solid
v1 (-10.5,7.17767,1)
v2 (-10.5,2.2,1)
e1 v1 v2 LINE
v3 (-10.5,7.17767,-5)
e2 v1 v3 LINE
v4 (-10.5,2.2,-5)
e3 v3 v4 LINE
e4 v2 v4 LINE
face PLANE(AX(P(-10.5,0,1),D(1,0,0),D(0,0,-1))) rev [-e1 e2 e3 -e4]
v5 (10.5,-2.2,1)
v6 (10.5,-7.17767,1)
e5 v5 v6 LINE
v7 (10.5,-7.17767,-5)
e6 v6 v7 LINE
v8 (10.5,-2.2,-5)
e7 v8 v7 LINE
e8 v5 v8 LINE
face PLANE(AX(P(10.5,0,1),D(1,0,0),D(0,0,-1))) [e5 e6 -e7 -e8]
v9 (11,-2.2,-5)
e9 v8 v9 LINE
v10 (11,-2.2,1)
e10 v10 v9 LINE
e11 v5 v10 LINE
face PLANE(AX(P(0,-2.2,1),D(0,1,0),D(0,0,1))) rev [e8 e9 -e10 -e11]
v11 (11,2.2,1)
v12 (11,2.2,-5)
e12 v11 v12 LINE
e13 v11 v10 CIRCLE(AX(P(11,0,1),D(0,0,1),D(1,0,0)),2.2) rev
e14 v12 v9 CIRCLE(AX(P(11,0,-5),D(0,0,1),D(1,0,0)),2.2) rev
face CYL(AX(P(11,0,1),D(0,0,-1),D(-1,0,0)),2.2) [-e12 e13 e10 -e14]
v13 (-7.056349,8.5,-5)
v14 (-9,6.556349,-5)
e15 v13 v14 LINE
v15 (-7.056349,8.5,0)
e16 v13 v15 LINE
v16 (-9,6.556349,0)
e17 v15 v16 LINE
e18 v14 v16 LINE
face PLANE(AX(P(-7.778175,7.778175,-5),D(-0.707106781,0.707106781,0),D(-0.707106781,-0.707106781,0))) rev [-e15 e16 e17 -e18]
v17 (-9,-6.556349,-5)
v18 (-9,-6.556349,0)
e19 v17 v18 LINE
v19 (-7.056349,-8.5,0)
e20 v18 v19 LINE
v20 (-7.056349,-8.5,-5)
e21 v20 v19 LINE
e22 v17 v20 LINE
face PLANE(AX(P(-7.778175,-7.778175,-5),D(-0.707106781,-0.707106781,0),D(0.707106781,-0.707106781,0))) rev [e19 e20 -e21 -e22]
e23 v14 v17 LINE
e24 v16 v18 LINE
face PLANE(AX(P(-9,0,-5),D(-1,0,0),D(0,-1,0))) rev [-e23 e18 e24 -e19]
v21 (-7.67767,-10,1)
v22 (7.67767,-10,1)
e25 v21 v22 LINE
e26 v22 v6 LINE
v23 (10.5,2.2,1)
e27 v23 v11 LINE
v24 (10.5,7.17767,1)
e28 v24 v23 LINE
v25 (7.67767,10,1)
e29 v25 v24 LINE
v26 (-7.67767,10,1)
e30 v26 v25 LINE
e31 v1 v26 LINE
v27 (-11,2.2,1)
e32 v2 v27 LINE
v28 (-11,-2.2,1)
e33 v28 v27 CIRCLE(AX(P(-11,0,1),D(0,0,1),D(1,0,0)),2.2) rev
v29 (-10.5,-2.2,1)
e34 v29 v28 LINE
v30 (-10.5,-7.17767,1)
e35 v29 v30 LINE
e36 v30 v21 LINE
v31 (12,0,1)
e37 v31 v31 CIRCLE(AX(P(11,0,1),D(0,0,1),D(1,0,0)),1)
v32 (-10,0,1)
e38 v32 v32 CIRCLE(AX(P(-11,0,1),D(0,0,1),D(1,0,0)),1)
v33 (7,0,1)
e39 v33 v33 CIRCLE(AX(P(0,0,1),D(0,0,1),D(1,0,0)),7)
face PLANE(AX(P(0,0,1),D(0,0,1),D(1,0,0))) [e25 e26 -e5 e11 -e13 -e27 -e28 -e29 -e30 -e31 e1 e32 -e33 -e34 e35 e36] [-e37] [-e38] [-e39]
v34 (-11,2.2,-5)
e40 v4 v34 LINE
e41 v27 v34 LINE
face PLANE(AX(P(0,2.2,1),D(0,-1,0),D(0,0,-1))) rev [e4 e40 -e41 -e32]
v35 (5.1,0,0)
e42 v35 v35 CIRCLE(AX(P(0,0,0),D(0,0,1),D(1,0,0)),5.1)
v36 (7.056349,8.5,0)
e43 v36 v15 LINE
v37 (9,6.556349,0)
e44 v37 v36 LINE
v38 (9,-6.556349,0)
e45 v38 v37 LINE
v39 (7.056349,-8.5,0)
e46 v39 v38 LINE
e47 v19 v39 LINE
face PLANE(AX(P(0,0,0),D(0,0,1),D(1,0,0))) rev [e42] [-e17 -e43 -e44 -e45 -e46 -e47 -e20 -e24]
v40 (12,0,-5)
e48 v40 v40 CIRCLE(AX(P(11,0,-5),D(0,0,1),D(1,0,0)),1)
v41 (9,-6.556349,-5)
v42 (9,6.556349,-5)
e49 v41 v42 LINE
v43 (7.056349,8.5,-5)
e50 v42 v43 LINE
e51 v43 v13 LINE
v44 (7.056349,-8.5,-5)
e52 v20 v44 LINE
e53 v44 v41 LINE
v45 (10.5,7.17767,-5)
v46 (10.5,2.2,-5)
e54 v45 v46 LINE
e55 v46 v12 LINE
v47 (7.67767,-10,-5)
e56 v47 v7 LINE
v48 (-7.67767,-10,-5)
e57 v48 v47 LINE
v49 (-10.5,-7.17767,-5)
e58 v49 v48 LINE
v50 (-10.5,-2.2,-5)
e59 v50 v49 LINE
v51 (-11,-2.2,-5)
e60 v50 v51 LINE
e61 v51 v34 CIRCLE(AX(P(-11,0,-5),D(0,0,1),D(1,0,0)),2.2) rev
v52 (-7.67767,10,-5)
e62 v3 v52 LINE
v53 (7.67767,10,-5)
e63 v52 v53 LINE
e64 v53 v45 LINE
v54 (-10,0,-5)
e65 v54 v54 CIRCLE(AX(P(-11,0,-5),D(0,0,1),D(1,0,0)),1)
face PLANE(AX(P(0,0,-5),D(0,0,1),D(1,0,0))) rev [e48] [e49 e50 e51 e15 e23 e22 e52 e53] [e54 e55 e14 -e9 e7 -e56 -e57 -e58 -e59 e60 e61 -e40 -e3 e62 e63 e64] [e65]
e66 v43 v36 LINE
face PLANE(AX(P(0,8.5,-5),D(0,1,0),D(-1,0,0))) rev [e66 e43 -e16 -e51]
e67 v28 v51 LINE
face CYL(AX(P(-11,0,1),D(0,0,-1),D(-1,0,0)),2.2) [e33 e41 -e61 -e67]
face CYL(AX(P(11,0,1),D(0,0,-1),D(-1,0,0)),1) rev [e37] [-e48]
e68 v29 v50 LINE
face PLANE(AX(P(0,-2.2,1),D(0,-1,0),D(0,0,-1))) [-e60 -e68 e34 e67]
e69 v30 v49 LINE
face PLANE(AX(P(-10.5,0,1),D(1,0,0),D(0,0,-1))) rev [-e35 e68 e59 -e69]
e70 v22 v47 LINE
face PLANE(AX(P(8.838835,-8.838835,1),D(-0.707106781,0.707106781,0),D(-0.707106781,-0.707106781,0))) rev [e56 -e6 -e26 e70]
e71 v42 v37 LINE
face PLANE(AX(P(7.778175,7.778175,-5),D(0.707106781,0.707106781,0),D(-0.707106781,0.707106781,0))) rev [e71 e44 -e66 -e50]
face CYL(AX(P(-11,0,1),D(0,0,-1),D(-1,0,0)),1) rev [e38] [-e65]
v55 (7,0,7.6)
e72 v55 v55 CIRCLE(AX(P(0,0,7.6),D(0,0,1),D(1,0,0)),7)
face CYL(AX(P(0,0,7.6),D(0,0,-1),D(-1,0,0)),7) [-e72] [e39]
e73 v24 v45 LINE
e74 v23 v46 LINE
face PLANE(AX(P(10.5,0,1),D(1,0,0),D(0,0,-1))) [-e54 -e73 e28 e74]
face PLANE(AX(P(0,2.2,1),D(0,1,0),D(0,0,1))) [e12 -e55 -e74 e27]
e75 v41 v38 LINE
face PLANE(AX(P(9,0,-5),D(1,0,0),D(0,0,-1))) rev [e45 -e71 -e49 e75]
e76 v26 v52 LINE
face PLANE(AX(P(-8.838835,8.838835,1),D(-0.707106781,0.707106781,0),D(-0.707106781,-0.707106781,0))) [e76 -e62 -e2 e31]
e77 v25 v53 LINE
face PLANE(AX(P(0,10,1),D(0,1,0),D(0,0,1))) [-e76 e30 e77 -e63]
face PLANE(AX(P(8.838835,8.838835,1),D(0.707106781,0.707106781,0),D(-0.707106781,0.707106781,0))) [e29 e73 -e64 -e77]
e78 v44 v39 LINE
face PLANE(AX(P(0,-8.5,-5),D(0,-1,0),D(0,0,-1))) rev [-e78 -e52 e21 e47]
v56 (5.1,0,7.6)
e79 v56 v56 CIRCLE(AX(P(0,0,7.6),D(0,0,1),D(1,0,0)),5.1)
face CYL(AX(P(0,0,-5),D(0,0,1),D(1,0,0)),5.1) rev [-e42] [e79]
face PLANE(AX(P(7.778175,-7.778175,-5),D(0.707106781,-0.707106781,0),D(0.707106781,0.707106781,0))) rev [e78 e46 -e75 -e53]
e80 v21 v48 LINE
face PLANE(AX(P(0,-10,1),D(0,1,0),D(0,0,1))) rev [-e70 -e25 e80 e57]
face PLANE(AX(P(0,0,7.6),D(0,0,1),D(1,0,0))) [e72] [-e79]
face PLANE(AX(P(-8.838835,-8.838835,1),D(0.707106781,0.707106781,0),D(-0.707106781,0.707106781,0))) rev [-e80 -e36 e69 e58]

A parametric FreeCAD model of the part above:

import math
import FreeCAD as App
import Part
import Sketcher
from FreeCAD import Vector

doc = App.newDocument("Part")
params = doc.addObject("Spreadsheet::Sheet", "Params")
for row, (alias, value) in enumerate([
    ("sketch1_diameter", "2 mm"),
    ("sketch1_radius", "2.2 mm"),
    ("sketch1_width", "0.5 mm"),
    ("pad1_length", "1 mm"),
    ("sketch2_diameter", "2 mm"),
    ("sketch2_radius", "2.2 mm"),
    ("sketch2_width", "0.5 mm"),
    ("pad2_length", "5 mm"),
    ("sketch3_diameter", "10.2 mm"),
    ("sketch4_diameter", "14 mm"),
    ("sketch4_diameter2", "10.2 mm"),
    ("pad3_length", "6.6 mm"),
], start=1):
    params.set(f"A{row}", alias)
    params.set(f"B{row}", "=" + value)
    params.setAlias(f"B{row}", alias)

body = doc.addObject("PartDesign::Body", "Body")

# Sketch on XY plane
sketch1 = body.newObject("Sketcher::SketchObject", "Sketch")
sketch1.AttachmentSupport = (doc.getObject("XY_Plane"), [""])
sketch1.MapMode = "FlatFace"
sketch1.addGeometry(Part.LineSegment(Vector(-7.7, 10, 0), Vector(-10.5, 7.2, 0)), False)
sketch1.addGeometry(Part.LineSegment(Vector(-10.5, 7.2, 0), Vector(-10.5, 2.2, 0)), False)
sketch1.addGeometry(Part.LineSegment(Vector(-10.5, 2.2, 0), Vector(-11, 2.2, 0)), False)
sketch1.addGeometry(Part.ArcOfCircle(Part.Circle(Vector(-11, 0, 0), Vector(0, 0, 1), 2.2), math.radians(90), math.radians(270)), False)
sketch1.addGeometry(Part.LineSegment(Vector(-11, -2.2, 0), Vector(-10.5, -2.2, 0)), False)
sketch1.addGeometry(Part.LineSegment(Vector(-10.5, -2.2, 0), Vector(-10.5, -7.2, 0)), False)
sketch1.addGeometry(Part.LineSegment(Vector(-10.5, -7.2, 0), Vector(-7.7, -10, 0)), False)
sketch1.addGeometry(Part.LineSegment(Vector(-7.7, -10, 0), Vector(7.7, -10, 0)), False)
sketch1.addGeometry(Part.LineSegment(Vector(7.7, -10, 0), Vector(10.5, -7.2, 0)), False)
sketch1.addGeometry(Part.LineSegment(Vector(10.5, -7.2, 0), Vector(10.5, -2.2, 0)), False)
sketch1.addGeometry(Part.LineSegment(Vector(10.5, -2.2, 0), Vector(11, -2.2, 0)), False)
sketch1.addGeometry(Part.ArcOfCircle(Part.Circle(Vector(11, 0, 0), Vector(0, 0, 1), 2.2), math.radians(-90), math.radians(90)), False)
sketch1.addGeometry(Part.LineSegment(Vector(11, 2.2, 0), Vector(10.5, 2.2, 0)), False)
sketch1.addGeometry(Part.LineSegment(Vector(10.5, 2.2, 0), Vector(10.5, 7.2, 0)), False)
sketch1.addGeometry(Part.LineSegment(Vector(10.5, 7.2, 0), Vector(7.7, 10, 0)), False)
sketch1.addGeometry(Part.LineSegment(Vector(7.7, 10, 0), Vector(-7.7, 10, 0)), False)
sketch1.addGeometry(Part.Circle(Vector(-11, 0, 0), Vector(0, 0, 1), 1), False)
sketch1.addGeometry(Part.Circle(Vector(11, 0, 0), Vector(0, 0, 1), 1), False)
sketch1.addConstraint(Sketcher.Constraint("Coincident", 0, 2, 1, 1))
sketch1.addConstraint(Sketcher.Constraint("Coincident", 1, 2, 2, 1))
sketch1.addConstraint(Sketcher.Constraint("Tangent", 2, 2, 3, 1))
sketch1.addConstraint(Sketcher.Constraint("Tangent", 3, 2, 4, 1))
sketch1.addConstraint(Sketcher.Constraint("Coincident", 4, 2, 5, 1))
sketch1.addConstraint(Sketcher.Constraint("Coincident", 5, 2, 6, 1))
sketch1.addConstraint(Sketcher.Constraint("Coincident", 6, 2, 7, 1))
sketch1.addConstraint(Sketcher.Constraint("Coincident", 7, 2, 8, 1))
sketch1.addConstraint(Sketcher.Constraint("Coincident", 8, 2, 9, 1))
sketch1.addConstraint(Sketcher.Constraint("Coincident", 9, 2, 10, 1))
sketch1.addConstraint(Sketcher.Constraint("Tangent", 10, 2, 11, 1))
sketch1.addConstraint(Sketcher.Constraint("Tangent", 11, 2, 12, 1))
sketch1.addConstraint(Sketcher.Constraint("Coincident", 12, 2, 13, 1))
sketch1.addConstraint(Sketcher.Constraint("Coincident", 13, 2, 14, 1))
sketch1.addConstraint(Sketcher.Constraint("Coincident", 14, 2, 15, 1))
sketch1.addConstraint(Sketcher.Constraint("Coincident", 15, 2, 0, 1))
sketch1.addConstraint(Sketcher.Constraint("Vertical", 1))
sketch1.addConstraint(Sketcher.Constraint("Horizontal", 2))
sketch1.addConstraint(Sketcher.Constraint("Horizontal", 4))
sketch1.addConstraint(Sketcher.Constraint("Vertical", 5))
sketch1.addConstraint(Sketcher.Constraint("Horizontal", 7))
sketch1.addConstraint(Sketcher.Constraint("Vertical", 9))
sketch1.addConstraint(Sketcher.Constraint("Horizontal", 10))
sketch1.addConstraint(Sketcher.Constraint("Horizontal", 12))
sketch1.addConstraint(Sketcher.Constraint("Vertical", 13))
sketch1.addConstraint(Sketcher.Constraint("Horizontal", 15))
sketch1.addConstraint(Sketcher.Constraint("Coincident", 16, 3, 3, 3))
sketch1.addConstraint(Sketcher.Constraint("Coincident", 17, 3, 11, 3))
sketch1.addConstraint(Sketcher.Constraint("Equal", 3, 11))
sketch1.addConstraint(Sketcher.Constraint("Equal", 16, 17))
sketch1.addConstraint(Sketcher.Constraint("Symmetric", 3, 3, 11, 3, -1, 1))
sketch1.addConstraint(Sketcher.Constraint("Symmetric", 0, 2, 8, 2, -1, 1))
sketch1.addConstraint(Sketcher.Constraint("Symmetric", 5, 2, 13, 2, -1, 1))
sketch1.addConstraint(Sketcher.Constraint("Symmetric", 6, 2, 14, 2, -1, 1))
sketch1.addConstraint(Sketcher.Constraint("Symmetric", 5, 2, 8, 2, -2))
sketch1.addConstraint(Sketcher.Constraint("PointOnObject", 3, 3, -1))
sketch1.addConstraint(Sketcher.Constraint("Perpendicular", 0, 6))
sketch1.addConstraint(Sketcher.Constraint("Perpendicular", 6, 8))
sketch1.addConstraint(Sketcher.Constraint("Vertical", 7, 2, 14, 2))
sketch1.addConstraint(Sketcher.Constraint("Diameter", 16, 2.0))
sketch1.addConstraint(Sketcher.Constraint("Radius", 3, 2.2))
sketch1.addConstraint(Sketcher.Constraint("DistanceX", 2, 2, 2, 1, 0.5))
sketch1.addConstraint(Sketcher.Constraint("DistanceX", 3, 3, -1, 1, 11.0))
sketch1.addConstraint(Sketcher.Constraint("DistanceY", 6, 2, -1, 1, 10.0))
sketch1.addConstraint(Sketcher.Constraint("DistanceX", 7, 1, 7, 2, 15.355339))
sketch1.setExpression("Constraints[39]", "Params.sketch1_diameter")
sketch1.setExpression("Constraints[40]", "Params.sketch1_radius")
sketch1.setExpression("Constraints[41]", "Params.sketch1_width")
pad1 = body.newObject("PartDesign::Pad", "Pad")
pad1.Profile = sketch1
pad1.setExpression("Length", "Params.pad1_length")

# Sketch on XY plane
sketch2 = body.newObject("Sketcher::SketchObject", "Sketch001")
sketch2.AttachmentSupport = (doc.getObject("XY_Plane"), [""])
sketch2.MapMode = "FlatFace"
sketch2.AttachmentOffset = App.Placement(Vector(0, 0, -5), App.Rotation())
sketch2.addGeometry(Part.LineSegment(Vector(-7.7, 10, 0), Vector(-10.5, 7.2, 0)), False)
sketch2.addGeometry(Part.LineSegment(Vector(-10.5, 7.2, 0), Vector(-10.5, 2.2, 0)), False)
sketch2.addGeometry(Part.LineSegment(Vector(-10.5, 2.2, 0), Vector(-11, 2.2, 0)), False)
sketch2.addGeometry(Part.ArcOfCircle(Part.Circle(Vector(-11, 0, 0), Vector(0, 0, 1), 2.2), math.radians(90), math.radians(270)), False)
sketch2.addGeometry(Part.LineSegment(Vector(-11, -2.2, 0), Vector(-10.5, -2.2, 0)), False)
sketch2.addGeometry(Part.LineSegment(Vector(-10.5, -2.2, 0), Vector(-10.5, -7.2, 0)), False)
sketch2.addGeometry(Part.LineSegment(Vector(-10.5, -7.2, 0), Vector(-7.7, -10, 0)), False)
sketch2.addGeometry(Part.LineSegment(Vector(-7.7, -10, 0), Vector(7.7, -10, 0)), False)
sketch2.addGeometry(Part.LineSegment(Vector(7.7, -10, 0), Vector(10.5, -7.2, 0)), False)
sketch2.addGeometry(Part.LineSegment(Vector(10.5, -7.2, 0), Vector(10.5, -2.2, 0)), False)
sketch2.addGeometry(Part.LineSegment(Vector(10.5, -2.2, 0), Vector(11, -2.2, 0)), False)
sketch2.addGeometry(Part.ArcOfCircle(Part.Circle(Vector(11, 0, 0), Vector(0, 0, 1), 2.2), math.radians(-90), math.radians(90)), False)
sketch2.addGeometry(Part.LineSegment(Vector(11, 2.2, 0), Vector(10.5, 2.2, 0)), False)
sketch2.addGeometry(Part.LineSegment(Vector(10.5, 2.2, 0), Vector(10.5, 7.2, 0)), False)
sketch2.addGeometry(Part.LineSegment(Vector(10.5, 7.2, 0), Vector(7.7, 10, 0)), False)
sketch2.addGeometry(Part.LineSegment(Vector(7.7, 10, 0), Vector(-7.7, 10, 0)), False)
sketch2.addGeometry(Part.Circle(Vector(-11, 0, 0), Vector(0, 0, 1), 1), False)
sketch2.addGeometry(Part.LineSegment(Vector(-7.1, -8.5, 0), Vector(-9, -6.6, 0)), False)
sketch2.addGeometry(Part.LineSegment(Vector(-9, -6.6, 0), Vector(-9, 6.6, 0)), False)
sketch2.addGeometry(Part.LineSegment(Vector(-9, 6.6, 0), Vector(-7.1, 8.5, 0)), False)
sketch2.addGeometry(Part.LineSegment(Vector(-7.1, 8.5, 0), Vector(7.1, 8.5, 0)), False)
sketch2.addGeometry(Part.LineSegment(Vector(7.1, 8.5, 0), Vector(9, 6.6, 0)), False)
sketch2.addGeometry(Part.LineSegment(Vector(9, 6.6, 0), Vector(9, -6.6, 0)), False)
sketch2.addGeometry(Part.LineSegment(Vector(9, -6.6, 0), Vector(7.1, -8.5, 0)), False)
sketch2.addGeometry(Part.LineSegment(Vector(7.1, -8.5, 0), Vector(-7.1, -8.5, 0)), False)
sketch2.addGeometry(Part.Circle(Vector(11, 0, 0), Vector(0, 0, 1), 1), False)
sketch2.addConstraint(Sketcher.Constraint("Coincident", 0, 2, 1, 1))
sketch2.addConstraint(Sketcher.Constraint("Coincident", 1, 2, 2, 1))
sketch2.addConstraint(Sketcher.Constraint("Tangent", 2, 2, 3, 1))
sketch2.addConstraint(Sketcher.Constraint("Tangent", 3, 2, 4, 1))
sketch2.addConstraint(Sketcher.Constraint("Coincident", 4, 2, 5, 1))
sketch2.addConstraint(Sketcher.Constraint("Coincident", 5, 2, 6, 1))
sketch2.addConstraint(Sketcher.Constraint("Coincident", 6, 2, 7, 1))
sketch2.addConstraint(Sketcher.Constraint("Coincident", 7, 2, 8, 1))
sketch2.addConstraint(Sketcher.Constraint("Coincident", 8, 2, 9, 1))
sketch2.addConstraint(Sketcher.Constraint("Coincident", 9, 2, 10, 1))
sketch2.addConstraint(Sketcher.Constraint("Tangent", 10, 2, 11, 1))
sketch2.addConstraint(Sketcher.Constraint("Tangent", 11, 2, 12, 1))
sketch2.addConstraint(Sketcher.Constraint("Coincident", 12, 2, 13, 1))
sketch2.addConstraint(Sketcher.Constraint("Coincident", 13, 2, 14, 1))
sketch2.addConstraint(Sketcher.Constraint("Coincident", 14, 2, 15, 1))
sketch2.addConstraint(Sketcher.Constraint("Coincident", 15, 2, 0, 1))
sketch2.addConstraint(Sketcher.Constraint("Coincident", 17, 2, 18, 1))
sketch2.addConstraint(Sketcher.Constraint("Coincident", 18, 2, 19, 1))
sketch2.addConstraint(Sketcher.Constraint("Coincident", 19, 2, 20, 1))
sketch2.addConstraint(Sketcher.Constraint("Coincident", 20, 2, 21, 1))
sketch2.addConstraint(Sketcher.Constraint("Coincident", 21, 2, 22, 1))
sketch2.addConstraint(Sketcher.Constraint("Coincident", 22, 2, 23, 1))
sketch2.addConstraint(Sketcher.Constraint("Coincident", 23, 2, 24, 1))
sketch2.addConstraint(Sketcher.Constraint("Coincident", 24, 2, 17, 1))
sketch2.addConstraint(Sketcher.Constraint("Vertical", 1))
sketch2.addConstraint(Sketcher.Constraint("Horizontal", 2))
sketch2.addConstraint(Sketcher.Constraint("Horizontal", 4))
sketch2.addConstraint(Sketcher.Constraint("Vertical", 5))
sketch2.addConstraint(Sketcher.Constraint("Horizontal", 7))
sketch2.addConstraint(Sketcher.Constraint("Vertical", 9))
sketch2.addConstraint(Sketcher.Constraint("Horizontal", 10))
sketch2.addConstraint(Sketcher.Constraint("Horizontal", 12))
sketch2.addConstraint(Sketcher.Constraint("Vertical", 13))
sketch2.addConstraint(Sketcher.Constraint("Horizontal", 15))
sketch2.addConstraint(Sketcher.Constraint("Vertical", 18))
sketch2.addConstraint(Sketcher.Constraint("Horizontal", 20))
sketch2.addConstraint(Sketcher.Constraint("Vertical", 22))
sketch2.addConstraint(Sketcher.Constraint("Horizontal", 24))
sketch2.addConstraint(Sketcher.Constraint("Coincident", 16, 3, 3, 3))
sketch2.addConstraint(Sketcher.Constraint("Coincident", 25, 3, 11, 3))
sketch2.addConstraint(Sketcher.Constraint("Equal", 3, 11))
sketch2.addConstraint(Sketcher.Constraint("Equal", 16, 25))
sketch2.addConstraint(Sketcher.Constraint("Symmetric", 3, 3, 11, 3, -1, 1))
sketch2.addConstraint(Sketcher.Constraint("Symmetric", 0, 2, 8, 2, -1, 1))
sketch2.addConstraint(Sketcher.Constraint("Symmetric", 5, 2, 13, 2, -1, 1))
sketch2.addConstraint(Sketcher.Constraint("Symmetric", 6, 2, 14, 2, -1, 1))
sketch2.addConstraint(Sketcher.Constraint("Symmetric", 17, 2, 21, 2, -1, 1))
sketch2.addConstraint(Sketcher.Constraint("Symmetric", 19, 2, 23, 2, -1, 1))
sketch2.addConstraint(Sketcher.Constraint("Symmetric", 5, 2, 8, 2, -2))
sketch2.addConstraint(Sketcher.Constraint("PointOnObject", 3, 3, -1))
sketch2.addConstraint(Sketcher.Constraint("Perpendicular", 0, 6))
sketch2.addConstraint(Sketcher.Constraint("Perpendicular", 6, 8))
sketch2.addConstraint(Sketcher.Constraint("Parallel", 14, 17))
sketch2.addConstraint(Sketcher.Constraint("Perpendicular", 17, 19))
sketch2.addConstraint(Sketcher.Constraint("Perpendicular", 19, 21))
sketch2.addConstraint(Sketcher.Constraint("Perpendicular", 21, 23))
sketch2.addConstraint(Sketcher.Constraint("Horizontal", 18, 2, 21, 2))
sketch2.addConstraint(Sketcher.Constraint("Vertical", 7, 2, 14, 2))
sketch2.addConstraint(Sketcher.Constraint("Diameter", 16, 2.0))
sketch2.addConstraint(Sketcher.Constraint("Radius", 3, 2.2))
sketch2.addConstraint(Sketcher.Constraint("DistanceX", 2, 2, 2, 1, 0.5))
sketch2.addConstraint(Sketcher.Constraint("DistanceX", 3, 3, -1, 1, 11.0))
sketch2.addConstraint(Sketcher.Constraint("DistanceY", 6, 2, -1, 1, 10.0))
sketch2.addConstraint(Sketcher.Constraint("DistanceX", 17, 2, -1, 1, 9.0))
sketch2.addConstraint(Sketcher.Constraint("DistanceY", -1, 1, 19, 2, 8.5))
sketch2.addConstraint(Sketcher.Constraint("DistanceX", 20, 1, 20, 2, 14.112698))
sketch2.addConstraint(Sketcher.Constraint("DistanceX", 7, 1, 7, 2, 15.355339))
sketch2.setExpression("Constraints[58]", "Params.sketch2_diameter")
sketch2.setExpression("Constraints[59]", "Params.sketch2_radius")
sketch2.setExpression("Constraints[60]", "Params.sketch2_width")
pad2 = body.newObject("PartDesign::Pad", "Pad001")
pad2.Profile = sketch2
pad2.setExpression("Length", "Params.pad2_length")

# Sketch on XY plane
sketch3 = body.newObject("Sketcher::SketchObject", "Sketch002")
sketch3.AttachmentSupport = (doc.getObject("XY_Plane"), [""])
sketch3.MapMode = "FlatFace"
sketch3.AttachmentOffset = App.Placement(Vector(0, 0, 1), App.Rotation())
sketch3.addGeometry(Part.Circle(Vector(0, 0, 0), Vector(0, 0, 1), 5), False)
sketch3.addConstraint(Sketcher.Constraint("Coincident", 0, 3, -1, 1))
sketch3.addConstraint(Sketcher.Constraint("Diameter", 0, 10.2))
sketch3.setExpression("Constraints[1]", "Params.sketch3_diameter")
pocket1 = body.newObject("PartDesign::Pocket", "Pocket")
pocket1.Profile = sketch3
pocket1.Type = "ThroughAll"

# Sketch on XY plane
sketch4 = body.newObject("Sketcher::SketchObject", "Sketch003")
sketch4.AttachmentSupport = (doc.getObject("XY_Plane"), [""])
sketch4.MapMode = "FlatFace"
sketch4.AttachmentOffset = App.Placement(Vector(0, 0, 7.6), App.Rotation())
sketch4.addGeometry(Part.Circle(Vector(0, 0, 0), Vector(0, 0, 1), 7), False)
sketch4.addGeometry(Part.Circle(Vector(0, 0, 0), Vector(0, 0, 1), 5), False)
sketch4.addConstraint(Sketcher.Constraint("Coincident", 0, 3, -1, 1))
sketch4.addConstraint(Sketcher.Constraint("Coincident", 1, 3, -1, 1))
sketch4.addConstraint(Sketcher.Constraint("Diameter", 0, 14.0))
sketch4.addConstraint(Sketcher.Constraint("Diameter", 1, 10.2))
sketch4.setExpression("Constraints[2]", "Params.sketch4_diameter")
sketch4.setExpression("Constraints[3]", "Params.sketch4_diameter2")
pad3 = body.newObject("PartDesign::Pad", "Pad002")
pad3.Profile = sketch4
pad3.setExpression("Length", "Params.pad3_length")
pad3.Reversed = True

doc.recompute()
